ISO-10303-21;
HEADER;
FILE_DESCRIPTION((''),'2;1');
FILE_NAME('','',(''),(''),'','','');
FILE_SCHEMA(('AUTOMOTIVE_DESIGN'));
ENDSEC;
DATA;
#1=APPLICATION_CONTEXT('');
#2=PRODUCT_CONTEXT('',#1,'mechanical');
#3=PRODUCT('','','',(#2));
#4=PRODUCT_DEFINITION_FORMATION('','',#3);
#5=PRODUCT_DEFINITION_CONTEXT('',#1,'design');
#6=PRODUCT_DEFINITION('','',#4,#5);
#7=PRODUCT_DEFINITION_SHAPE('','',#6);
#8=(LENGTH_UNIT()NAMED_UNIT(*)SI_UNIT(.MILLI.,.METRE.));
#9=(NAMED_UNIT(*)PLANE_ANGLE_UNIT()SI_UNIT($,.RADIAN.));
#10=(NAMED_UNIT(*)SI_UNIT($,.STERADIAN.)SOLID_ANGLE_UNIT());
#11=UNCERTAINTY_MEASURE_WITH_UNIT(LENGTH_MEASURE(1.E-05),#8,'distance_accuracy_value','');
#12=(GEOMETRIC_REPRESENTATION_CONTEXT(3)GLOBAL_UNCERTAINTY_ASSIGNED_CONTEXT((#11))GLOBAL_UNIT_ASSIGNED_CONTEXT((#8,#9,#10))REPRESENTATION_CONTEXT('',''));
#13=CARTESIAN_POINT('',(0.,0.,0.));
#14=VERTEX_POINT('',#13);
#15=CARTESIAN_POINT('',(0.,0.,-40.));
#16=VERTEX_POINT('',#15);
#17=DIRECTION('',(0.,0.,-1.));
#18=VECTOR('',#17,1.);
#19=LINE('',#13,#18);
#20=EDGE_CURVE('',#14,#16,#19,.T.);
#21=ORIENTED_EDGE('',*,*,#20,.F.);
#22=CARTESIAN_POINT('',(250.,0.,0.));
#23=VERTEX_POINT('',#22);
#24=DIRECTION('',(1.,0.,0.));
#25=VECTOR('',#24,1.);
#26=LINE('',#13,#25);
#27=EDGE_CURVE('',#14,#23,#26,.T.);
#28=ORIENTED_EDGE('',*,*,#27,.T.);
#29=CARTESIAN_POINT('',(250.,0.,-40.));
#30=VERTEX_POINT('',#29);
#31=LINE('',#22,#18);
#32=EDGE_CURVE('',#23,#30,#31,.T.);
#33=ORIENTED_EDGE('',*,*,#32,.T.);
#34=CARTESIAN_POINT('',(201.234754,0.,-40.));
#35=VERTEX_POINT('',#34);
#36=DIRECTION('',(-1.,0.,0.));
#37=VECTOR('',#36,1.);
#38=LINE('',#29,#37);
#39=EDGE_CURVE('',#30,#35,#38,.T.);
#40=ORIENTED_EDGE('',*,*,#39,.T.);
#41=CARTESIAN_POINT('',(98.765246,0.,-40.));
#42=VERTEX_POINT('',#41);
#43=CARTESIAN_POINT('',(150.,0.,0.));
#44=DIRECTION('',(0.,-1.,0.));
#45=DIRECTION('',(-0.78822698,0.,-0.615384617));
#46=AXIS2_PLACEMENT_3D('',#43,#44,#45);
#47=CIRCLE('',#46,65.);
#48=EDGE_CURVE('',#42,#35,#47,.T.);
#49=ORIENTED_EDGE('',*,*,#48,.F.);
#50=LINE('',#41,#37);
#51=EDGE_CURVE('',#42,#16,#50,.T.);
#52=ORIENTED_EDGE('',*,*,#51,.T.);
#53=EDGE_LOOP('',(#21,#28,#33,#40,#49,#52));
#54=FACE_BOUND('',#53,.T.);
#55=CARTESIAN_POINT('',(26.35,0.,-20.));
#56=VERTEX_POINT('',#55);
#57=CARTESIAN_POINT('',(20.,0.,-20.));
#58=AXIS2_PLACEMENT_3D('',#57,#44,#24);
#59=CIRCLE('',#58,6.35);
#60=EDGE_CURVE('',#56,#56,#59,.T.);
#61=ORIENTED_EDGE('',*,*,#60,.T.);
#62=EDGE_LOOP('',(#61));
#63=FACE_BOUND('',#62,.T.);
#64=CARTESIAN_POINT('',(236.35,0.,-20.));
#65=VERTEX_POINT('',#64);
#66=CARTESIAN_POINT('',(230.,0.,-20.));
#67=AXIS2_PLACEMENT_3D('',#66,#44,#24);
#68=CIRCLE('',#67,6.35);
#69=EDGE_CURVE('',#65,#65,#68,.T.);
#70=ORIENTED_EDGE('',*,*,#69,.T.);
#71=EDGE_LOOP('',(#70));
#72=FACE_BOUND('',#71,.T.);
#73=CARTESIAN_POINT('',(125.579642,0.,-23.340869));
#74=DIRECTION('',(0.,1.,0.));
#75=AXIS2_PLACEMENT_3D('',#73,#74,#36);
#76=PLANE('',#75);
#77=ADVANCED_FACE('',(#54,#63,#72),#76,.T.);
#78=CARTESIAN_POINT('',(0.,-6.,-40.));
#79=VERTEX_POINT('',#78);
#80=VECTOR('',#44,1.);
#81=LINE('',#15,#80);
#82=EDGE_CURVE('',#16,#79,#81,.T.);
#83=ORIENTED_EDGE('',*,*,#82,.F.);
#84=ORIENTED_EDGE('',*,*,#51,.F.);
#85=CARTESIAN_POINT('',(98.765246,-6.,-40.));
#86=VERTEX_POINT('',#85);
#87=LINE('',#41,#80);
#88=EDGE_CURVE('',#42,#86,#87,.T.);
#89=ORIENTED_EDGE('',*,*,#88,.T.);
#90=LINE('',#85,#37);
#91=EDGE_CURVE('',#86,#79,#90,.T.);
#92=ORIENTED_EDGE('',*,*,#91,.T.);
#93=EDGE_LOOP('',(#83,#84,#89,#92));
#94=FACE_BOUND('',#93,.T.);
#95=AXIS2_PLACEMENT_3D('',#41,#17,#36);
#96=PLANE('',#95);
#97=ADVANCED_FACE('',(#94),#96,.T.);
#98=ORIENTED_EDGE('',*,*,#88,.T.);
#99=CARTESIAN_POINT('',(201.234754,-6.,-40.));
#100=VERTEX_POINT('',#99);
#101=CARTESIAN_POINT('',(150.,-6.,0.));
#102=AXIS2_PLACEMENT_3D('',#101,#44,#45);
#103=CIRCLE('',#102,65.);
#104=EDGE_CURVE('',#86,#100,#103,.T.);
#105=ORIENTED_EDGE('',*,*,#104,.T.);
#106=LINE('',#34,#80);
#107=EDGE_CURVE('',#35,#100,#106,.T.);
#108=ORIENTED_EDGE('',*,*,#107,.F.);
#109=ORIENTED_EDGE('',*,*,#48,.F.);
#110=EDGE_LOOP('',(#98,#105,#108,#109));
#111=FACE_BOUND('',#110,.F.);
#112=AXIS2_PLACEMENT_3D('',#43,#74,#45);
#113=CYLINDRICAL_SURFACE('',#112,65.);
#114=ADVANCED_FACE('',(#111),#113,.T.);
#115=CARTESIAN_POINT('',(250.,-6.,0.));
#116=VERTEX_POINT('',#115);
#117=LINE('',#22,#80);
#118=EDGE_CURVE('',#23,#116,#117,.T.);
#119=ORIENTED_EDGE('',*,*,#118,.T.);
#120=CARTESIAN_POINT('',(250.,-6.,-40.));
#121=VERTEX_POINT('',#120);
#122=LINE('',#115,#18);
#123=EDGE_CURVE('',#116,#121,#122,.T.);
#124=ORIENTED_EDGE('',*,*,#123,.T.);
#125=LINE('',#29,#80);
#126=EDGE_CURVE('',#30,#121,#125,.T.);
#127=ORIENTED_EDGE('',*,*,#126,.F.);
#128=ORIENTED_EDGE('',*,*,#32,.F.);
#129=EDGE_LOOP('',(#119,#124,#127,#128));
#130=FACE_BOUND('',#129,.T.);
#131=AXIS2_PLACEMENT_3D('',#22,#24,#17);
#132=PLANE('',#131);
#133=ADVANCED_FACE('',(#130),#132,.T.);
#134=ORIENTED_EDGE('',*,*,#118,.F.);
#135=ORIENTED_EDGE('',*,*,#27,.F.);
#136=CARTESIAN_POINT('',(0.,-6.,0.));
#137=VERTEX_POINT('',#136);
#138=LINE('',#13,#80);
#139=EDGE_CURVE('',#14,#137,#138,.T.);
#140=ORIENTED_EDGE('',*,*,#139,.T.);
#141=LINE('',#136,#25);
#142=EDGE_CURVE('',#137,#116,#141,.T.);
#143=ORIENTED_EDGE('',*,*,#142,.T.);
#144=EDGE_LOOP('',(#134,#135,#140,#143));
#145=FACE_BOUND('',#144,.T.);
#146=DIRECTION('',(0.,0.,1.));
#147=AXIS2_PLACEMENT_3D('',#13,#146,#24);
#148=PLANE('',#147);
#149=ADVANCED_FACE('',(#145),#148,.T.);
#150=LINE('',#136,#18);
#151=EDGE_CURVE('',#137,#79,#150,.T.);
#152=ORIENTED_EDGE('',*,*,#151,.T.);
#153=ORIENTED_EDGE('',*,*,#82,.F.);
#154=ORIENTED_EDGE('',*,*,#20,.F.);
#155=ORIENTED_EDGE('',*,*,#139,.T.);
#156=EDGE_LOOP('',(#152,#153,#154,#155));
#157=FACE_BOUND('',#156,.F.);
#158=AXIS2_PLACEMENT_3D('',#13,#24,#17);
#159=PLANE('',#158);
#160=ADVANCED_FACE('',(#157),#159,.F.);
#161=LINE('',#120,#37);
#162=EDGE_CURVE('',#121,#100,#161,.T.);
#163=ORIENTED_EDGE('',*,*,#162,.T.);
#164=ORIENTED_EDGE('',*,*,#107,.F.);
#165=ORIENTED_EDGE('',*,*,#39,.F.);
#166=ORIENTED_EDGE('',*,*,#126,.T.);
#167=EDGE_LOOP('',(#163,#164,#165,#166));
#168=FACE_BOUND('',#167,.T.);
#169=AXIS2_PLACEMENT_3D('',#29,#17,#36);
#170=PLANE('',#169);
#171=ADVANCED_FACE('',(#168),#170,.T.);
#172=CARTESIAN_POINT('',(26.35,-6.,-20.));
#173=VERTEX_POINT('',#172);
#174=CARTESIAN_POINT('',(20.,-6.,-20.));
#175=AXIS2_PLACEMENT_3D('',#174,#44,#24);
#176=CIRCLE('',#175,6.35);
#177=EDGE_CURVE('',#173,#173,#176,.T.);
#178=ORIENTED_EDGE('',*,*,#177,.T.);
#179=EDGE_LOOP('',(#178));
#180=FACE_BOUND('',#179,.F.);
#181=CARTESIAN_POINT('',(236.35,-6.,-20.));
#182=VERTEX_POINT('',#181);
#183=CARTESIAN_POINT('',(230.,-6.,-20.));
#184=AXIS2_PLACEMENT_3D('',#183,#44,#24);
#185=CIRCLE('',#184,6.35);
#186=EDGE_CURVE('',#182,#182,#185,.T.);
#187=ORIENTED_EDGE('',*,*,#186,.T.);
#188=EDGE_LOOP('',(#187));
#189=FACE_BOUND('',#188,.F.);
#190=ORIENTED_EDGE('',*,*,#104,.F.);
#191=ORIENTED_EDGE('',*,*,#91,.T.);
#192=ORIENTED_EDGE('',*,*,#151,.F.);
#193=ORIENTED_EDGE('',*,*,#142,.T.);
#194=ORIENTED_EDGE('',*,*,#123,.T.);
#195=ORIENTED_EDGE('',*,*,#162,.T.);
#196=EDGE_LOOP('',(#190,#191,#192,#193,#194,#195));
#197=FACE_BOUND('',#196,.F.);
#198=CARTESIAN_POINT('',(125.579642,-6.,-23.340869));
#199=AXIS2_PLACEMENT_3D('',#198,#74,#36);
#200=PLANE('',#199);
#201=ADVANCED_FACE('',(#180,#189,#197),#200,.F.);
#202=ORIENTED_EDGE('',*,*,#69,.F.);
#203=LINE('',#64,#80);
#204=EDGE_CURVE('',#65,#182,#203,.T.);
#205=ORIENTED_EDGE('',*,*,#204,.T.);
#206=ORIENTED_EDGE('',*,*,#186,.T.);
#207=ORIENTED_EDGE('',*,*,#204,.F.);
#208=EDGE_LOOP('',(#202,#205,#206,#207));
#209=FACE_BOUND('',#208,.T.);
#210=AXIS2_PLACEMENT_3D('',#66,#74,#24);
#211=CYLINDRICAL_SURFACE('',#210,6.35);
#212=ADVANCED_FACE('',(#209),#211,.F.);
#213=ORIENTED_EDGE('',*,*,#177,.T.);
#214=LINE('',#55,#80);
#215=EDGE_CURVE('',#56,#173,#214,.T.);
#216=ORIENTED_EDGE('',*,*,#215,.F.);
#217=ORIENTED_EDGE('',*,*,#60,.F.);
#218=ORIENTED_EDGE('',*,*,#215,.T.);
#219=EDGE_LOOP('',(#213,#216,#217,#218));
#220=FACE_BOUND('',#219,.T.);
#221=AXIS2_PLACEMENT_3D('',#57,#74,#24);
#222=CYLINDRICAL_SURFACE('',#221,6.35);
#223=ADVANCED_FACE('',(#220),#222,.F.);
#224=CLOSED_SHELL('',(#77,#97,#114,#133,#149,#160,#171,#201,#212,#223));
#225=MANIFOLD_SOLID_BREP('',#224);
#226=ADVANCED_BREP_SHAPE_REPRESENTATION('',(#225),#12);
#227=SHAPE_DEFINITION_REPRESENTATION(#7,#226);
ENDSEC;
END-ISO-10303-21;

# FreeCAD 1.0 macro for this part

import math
import FreeCAD as App
import Part
import Sketcher
from FreeCAD import Vector
Q = App.Units.Quantity

doc = App.newDocument("Part")
body = doc.addObject("PartDesign::Body", "Body")

# Sketch on XZ plane
sketch1 = body.newObject("Sketcher::SketchObject", "Sketch")
sketch1.AttachmentSupport = (doc.getObject("XZ_Plane"), [""])
sketch1.MapMode = "FlatFace"
sketch1.addGeometry(Part.LineSegment(Vector(250, 0, 0), Vector(0, 0, 0)), False)
sketch1.addGeometry(Part.LineSegment(Vector(0, 0, 0), Vector(0, -40, 0)), False)
sketch1.addGeometry(Part.LineSegment(Vector(0, -40, 0), Vector(99, -40, 0)), False)
sketch1.addGeometry(Part.ArcOfCircle(Part.Circle(Vector(150, 0, 0), Vector(0, 0, 1), 65), math.radians(-142), math.radians(-38)), False)
sketch1.addGeometry(Part.LineSegment(Vector(201, -40, 0), Vector(250, -40, 0)), False)
sketch1.addGeometry(Part.LineSegment(Vector(250, -40, 0), Vector(250, 0, 0)), False)
sketch1.addGeometry(Part.Circle(Vector(230, -20, 0), Vector(0, 0, 1), 6), False)
sketch1.addGeometry(Part.Circle(Vector(20, -20, 0), Vector(0, 0, 1), 6), False)
sketch1.addConstraint(Sketcher.Constraint("Coincident", 0, 2, 1, 1))
sketch1.addConstraint(Sketcher.Constraint("Coincident", 1, 2, 2, 1))
sketch1.addConstraint(Sketcher.Constraint("Coincident", 2, 2, 3, 1))
sketch1.addConstraint(Sketcher.Constraint("Coincident", 3, 2, 4, 1))
sketch1.addConstraint(Sketcher.Constraint("Coincident", 4, 2, 5, 1))
sketch1.addConstraint(Sketcher.Constraint("Coincident", 5, 2, 0, 1))
sketch1.addConstraint(Sketcher.Constraint("Horizontal", 0))
sketch1.addConstraint(Sketcher.Constraint("Vertical", 1))
sketch1.addConstraint(Sketcher.Constraint("Horizontal", 2))
sketch1.addConstraint(Sketcher.Constraint("Horizontal", 4))
sketch1.addConstraint(Sketcher.Constraint("Vertical", 5))
sketch1.addConstraint(Sketcher.Constraint("Coincident", 0, 2, -1, 1))
sketch1.addConstraint(Sketcher.Constraint("Equal", 6, 7))
sketch1.addConstraint(Sketcher.Constraint("PointOnObject", 3, 3, -1))
sketch1.addConstraint(Sketcher.Constraint("Horizontal", 6, 3, 7, 3))
sketch1.addConstraint(Sketcher.Constraint("Horizontal", 2, 2, 3, 2))
sketch1.addConstraint(Sketcher.Constraint("Radius", 3, Q("65 mm")))
sketch1.addConstraint(Sketcher.Constraint("Diameter", 6, Q("12.7 mm")))
sketch1.addConstraint(Sketcher.Constraint("DistanceX", 0, 2, 0, 1, Q("250 mm")))
sketch1.addConstraint(Sketcher.Constraint("DistanceY", 1, 2, 1, 1, Q("40 mm")))
sketch1.addConstraint(Sketcher.Constraint("DistanceX", -1, 1, 3, 3, Q("150 mm")))
sketch1.addConstraint(Sketcher.Constraint("DistanceX", -1, 1, 6, 3, Q("230 mm")))
sketch1.addConstraint(Sketcher.Constraint("DistanceY", 6, 3, -1, 1, Q("20 mm")))
sketch1.addConstraint(Sketcher.Constraint("DistanceX", -1, 1, 7, 3, Q("20 mm")))
pad1 = body.newObject("PartDesign::Pad", "Pad")
pad1.Profile = sketch1
pad1.Length = 6

doc.recompute()
